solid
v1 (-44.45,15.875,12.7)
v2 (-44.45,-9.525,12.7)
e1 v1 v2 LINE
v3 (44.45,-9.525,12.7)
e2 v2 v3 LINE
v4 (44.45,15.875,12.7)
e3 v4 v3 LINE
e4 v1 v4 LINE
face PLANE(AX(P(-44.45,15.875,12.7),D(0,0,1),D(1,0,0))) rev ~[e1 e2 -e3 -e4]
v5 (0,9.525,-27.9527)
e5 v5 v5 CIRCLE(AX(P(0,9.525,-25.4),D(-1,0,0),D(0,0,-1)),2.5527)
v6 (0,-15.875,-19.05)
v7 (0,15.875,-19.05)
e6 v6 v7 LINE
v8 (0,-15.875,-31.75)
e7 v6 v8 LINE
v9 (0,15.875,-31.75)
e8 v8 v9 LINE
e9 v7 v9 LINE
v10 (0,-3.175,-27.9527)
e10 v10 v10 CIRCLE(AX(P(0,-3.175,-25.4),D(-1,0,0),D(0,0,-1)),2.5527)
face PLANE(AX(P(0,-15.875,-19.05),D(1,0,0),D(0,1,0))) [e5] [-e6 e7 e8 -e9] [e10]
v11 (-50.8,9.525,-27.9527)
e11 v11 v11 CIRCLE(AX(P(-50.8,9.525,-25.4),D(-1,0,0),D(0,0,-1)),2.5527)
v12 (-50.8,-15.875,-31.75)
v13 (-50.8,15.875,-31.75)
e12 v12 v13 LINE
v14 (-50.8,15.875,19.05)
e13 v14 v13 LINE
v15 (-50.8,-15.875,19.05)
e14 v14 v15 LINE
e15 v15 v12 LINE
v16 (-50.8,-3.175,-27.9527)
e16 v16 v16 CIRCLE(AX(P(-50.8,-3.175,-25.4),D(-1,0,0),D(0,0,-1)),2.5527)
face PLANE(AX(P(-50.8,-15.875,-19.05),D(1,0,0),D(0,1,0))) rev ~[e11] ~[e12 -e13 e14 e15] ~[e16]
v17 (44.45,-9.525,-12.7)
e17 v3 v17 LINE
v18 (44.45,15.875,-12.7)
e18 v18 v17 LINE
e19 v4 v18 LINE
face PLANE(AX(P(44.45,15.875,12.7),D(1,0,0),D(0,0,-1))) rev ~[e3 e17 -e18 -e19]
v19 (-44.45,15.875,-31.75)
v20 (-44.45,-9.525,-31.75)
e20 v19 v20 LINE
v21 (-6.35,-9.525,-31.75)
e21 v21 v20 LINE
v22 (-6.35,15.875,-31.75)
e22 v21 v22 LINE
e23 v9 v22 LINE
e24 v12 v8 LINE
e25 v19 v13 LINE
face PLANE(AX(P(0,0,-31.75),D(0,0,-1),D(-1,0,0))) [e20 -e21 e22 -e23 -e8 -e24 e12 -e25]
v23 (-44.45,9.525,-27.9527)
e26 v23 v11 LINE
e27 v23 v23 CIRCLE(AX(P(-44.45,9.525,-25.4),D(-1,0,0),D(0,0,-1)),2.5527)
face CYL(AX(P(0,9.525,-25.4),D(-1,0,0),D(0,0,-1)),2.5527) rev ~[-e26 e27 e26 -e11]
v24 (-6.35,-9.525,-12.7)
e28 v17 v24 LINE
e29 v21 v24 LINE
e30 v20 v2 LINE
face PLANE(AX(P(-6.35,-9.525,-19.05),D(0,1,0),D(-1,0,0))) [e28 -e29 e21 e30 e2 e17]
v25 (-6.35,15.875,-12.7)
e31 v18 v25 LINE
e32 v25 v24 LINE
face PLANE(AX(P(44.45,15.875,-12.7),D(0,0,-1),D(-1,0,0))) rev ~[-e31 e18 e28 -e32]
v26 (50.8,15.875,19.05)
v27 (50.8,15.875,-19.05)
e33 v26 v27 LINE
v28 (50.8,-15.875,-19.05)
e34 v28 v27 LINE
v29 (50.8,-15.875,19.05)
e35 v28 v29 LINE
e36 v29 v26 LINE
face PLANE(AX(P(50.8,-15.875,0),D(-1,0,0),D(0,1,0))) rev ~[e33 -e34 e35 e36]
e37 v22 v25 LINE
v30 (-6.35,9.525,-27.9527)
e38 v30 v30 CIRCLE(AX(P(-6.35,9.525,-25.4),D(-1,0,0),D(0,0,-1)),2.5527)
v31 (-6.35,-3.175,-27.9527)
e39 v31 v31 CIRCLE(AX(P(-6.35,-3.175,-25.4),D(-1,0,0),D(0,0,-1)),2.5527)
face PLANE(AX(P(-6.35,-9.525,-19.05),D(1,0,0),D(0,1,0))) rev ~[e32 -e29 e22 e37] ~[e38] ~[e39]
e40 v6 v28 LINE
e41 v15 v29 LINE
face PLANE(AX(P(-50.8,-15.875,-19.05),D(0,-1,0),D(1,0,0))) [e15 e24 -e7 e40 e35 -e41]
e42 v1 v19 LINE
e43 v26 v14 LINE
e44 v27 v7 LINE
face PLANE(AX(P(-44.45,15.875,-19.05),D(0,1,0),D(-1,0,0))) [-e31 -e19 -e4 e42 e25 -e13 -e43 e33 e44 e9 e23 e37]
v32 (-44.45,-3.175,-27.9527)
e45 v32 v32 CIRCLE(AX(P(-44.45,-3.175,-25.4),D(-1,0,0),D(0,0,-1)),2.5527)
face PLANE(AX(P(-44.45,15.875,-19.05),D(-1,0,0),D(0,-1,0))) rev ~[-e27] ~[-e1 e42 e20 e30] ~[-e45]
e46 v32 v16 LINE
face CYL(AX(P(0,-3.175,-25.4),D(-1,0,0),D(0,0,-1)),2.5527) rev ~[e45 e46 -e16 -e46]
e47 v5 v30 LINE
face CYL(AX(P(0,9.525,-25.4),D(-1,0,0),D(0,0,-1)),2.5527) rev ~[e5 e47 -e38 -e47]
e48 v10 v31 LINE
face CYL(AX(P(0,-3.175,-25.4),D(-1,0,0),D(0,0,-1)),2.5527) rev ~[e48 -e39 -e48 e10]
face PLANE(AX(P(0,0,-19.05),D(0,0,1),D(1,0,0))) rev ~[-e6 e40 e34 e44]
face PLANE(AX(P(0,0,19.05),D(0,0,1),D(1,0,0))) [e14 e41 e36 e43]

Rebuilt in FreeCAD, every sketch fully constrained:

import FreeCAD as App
import Part
import Sketcher
Q = App.Units.Quantity


def add_polygon(sketch, points):
    """Adds a closed chain of lines whose ends are joined by coincident constraints."""
    first, n = sketch.GeometryCount, len(points)
    for a, b in zip(points, points[1:] + points[:1]):
        sketch.addGeometry(Part.LineSegment(App.Vector(*a, 0), App.Vector(*b, 0)), False)
    for i in range(n):
        sketch.addConstraint(Sketcher.Constraint("Coincident", first + i, 2, first + (i + 1) % n, 1))

doc = App.newDocument("Part")
params = doc.addObject("Spreadsheet::Sheet", "Params")
for row, (alias, value) in enumerate([
    ("sketch1_width", "4 in"),
    ("sketch1_height", "1.25 in"),
    ("pad1_length", "1.5 in"),
    ("sketch2_height", "1 in"),
    ("sketch2_width", "3.5 in"),
    ("pocket1_length", "1 in"),
    ("sketch3_height", "1 in"),
    ("sketch3_width", "1.5 in"),
    ("sketch4_width", "2 in"),
    ("sketch4_height", "1 in"),
    ("sketch4_width2", "1.5 in"),
    ("sketch4_height2", "1.25 in"),
    ("pad2_length", "0.5 in"),
    ("sketch5_diameter", "0.201 in"),
    ("hole_diameter", "0.201 in"),
], start=1):
    params.set(f"A{row}", alias)
    params.set(f"B{row}", "=" + value)
    params.setAlias(f"B{row}", alias)

body = doc.addObject("PartDesign::Body", "Body")

sketch1 = body.newObject("Sketcher::SketchObject", "Sketch")
sketch1.AttachmentSupport = (doc.getObject("XY_Plane"), [""])
sketch1.MapMode = "FlatFace"
add_polygon(sketch1, [(-51, 16), (-51, -16), (51, -16), (51, 16)])
sketch1.addConstraint(Sketcher.Constraint("Vertical", 0))
sketch1.addConstraint(Sketcher.Constraint("Horizontal", 1))
sketch1.addConstraint(Sketcher.Constraint("Vertical", 2))
sketch1.addConstraint(Sketcher.Constraint("Horizontal", 3))
sketch1.addConstraint(Sketcher.Constraint("Symmetric", 0, 2, 2, 2, -1, 1))
sketch1.addConstraint(Sketcher.Constraint("DistanceX", 1, 1, 1, 2, Q("4 in")))
sketch1.addConstraint(Sketcher.Constraint("DistanceY", 0, 2, 0, 1, Q("1.25 in")))
sketch1.setExpression("Constraints[9]", "Params.sketch1_width")
sketch1.setExpression("Constraints[10]", "Params.sketch1_height")
pad1 = body.newObject("PartDesign::Pad", "Pad")
pad1.Profile = sketch1
pad1.setExpression("Length", "Params.pad1_length")
pad1.Midplane = True

sketch2 = body.newObject("Sketcher::SketchObject", "Sketch001")
sketch2.AttachmentSupport = (doc.getObject("XZ_Plane"), [""])
sketch2.MapMode = "FlatFace"
sketch2.AttachmentOffset = App.Placement(App.Vector(0, 0, -0.625 * 25.4), App.Rotation())
add_polygon(sketch2, [(-44, 13), (44, 13), (44, -13), (-44, -13)])
sketch2.addConstraint(Sketcher.Constraint("Horizontal", 0))
sketch2.addConstraint(Sketcher.Constraint("Vertical", 1))
sketch2.addConstraint(Sketcher.Constraint("Horizontal", 2))
sketch2.addConstraint(Sketcher.Constraint("Vertical", 3))
sketch2.addConstraint(Sketcher.Constraint("Symmetric", 0, 2, 2, 2, -1, 1))
sketch2.addConstraint(Sketcher.Constraint("DistanceY", 1, 2, 1, 1, Q("1 in")))
sketch2.addConstraint(Sketcher.Constraint("DistanceX", 0, 1, 0, 2, Q("3.5 in")))
sketch2.setExpression("Constraints[9]", "Params.sketch2_height")
sketch2.setExpression("Constraints[10]", "Params.sketch2_width")
pocket1 = body.newObject("PartDesign::Pocket", "Pocket")
pocket1.Profile = sketch2
pocket1.setExpression("Length", "Params.pocket1_length")
pocket1.Reversed = True

sketch3 = body.newObject("Sketcher::SketchObject", "Sketch002")
sketch3.AttachmentSupport = (doc.getObject("XY_Plane"), [""])
sketch3.MapMode = "FlatFace"
sketch3.AttachmentOffset = App.Placement(App.Vector(0, 0, -0.5 * 25.4), App.Rotation())
add_polygon(sketch3, [(-6, -10), (-6, 16), (-44, 16), (-44, -10)])
sketch3.addConstraint(Sketcher.Constraint("Vertical", 0))
sketch3.addConstraint(Sketcher.Constraint("Horizontal", 1))
sketch3.addConstraint(Sketcher.Constraint("Vertical", 2))
sketch3.addConstraint(Sketcher.Constraint("Horizontal", 3))
sketch3.addConstraint(Sketcher.Constraint("DistanceY", 0, 1, 0, 2, Q("1 in")))
sketch3.addConstraint(Sketcher.Constraint("DistanceX", 1, 2, 1, 1, Q("1.5 in")))
sketch3.addConstraint(Sketcher.Constraint("DistanceX", 0, 2, -1, 1, Q("0.25 in")))
sketch3.addConstraint(Sketcher.Constraint("DistanceY", -1, 1, 0, 2, Q("0.625 in")))
sketch3.setExpression("Constraints[8]", "Params.sketch3_height")
sketch3.setExpression("Constraints[9]", "Params.sketch3_width")
pocket2 = body.newObject("PartDesign::Pocket", "Pocket001")
pocket2.Profile = sketch3
pocket2.Type = "ThroughAll"

sketch4 = body.newObject("Sketcher::SketchObject", "Sketch003")
sketch4.AttachmentSupport = (doc.getObject("XY_Plane"), [""])
sketch4.MapMode = "FlatFace"
sketch4.AttachmentOffset = App.Placement(App.Vector(0, 0, -0.75 * 25.4), App.Rotation())
add_polygon(sketch4, [(0, -16), (-51, -16), (-51, 16), (-44, 16), (-44, -10), (-6, -10), (-6, 16), (0, 16)])
sketch4.addConstraint(Sketcher.Constraint("Horizontal", 0))
sketch4.addConstraint(Sketcher.Constraint("Vertical", 1))
sketch4.addConstraint(Sketcher.Constraint("Horizontal", 2))
sketch4.addConstraint(Sketcher.Constraint("Vertical", 3))
sketch4.addConstraint(Sketcher.Constraint("Horizontal", 4))
sketch4.addConstraint(Sketcher.Constraint("Vertical", 5))
sketch4.addConstraint(Sketcher.Constraint("Horizontal", 6))
sketch4.addConstraint(Sketcher.Constraint("Vertical", 7))
sketch4.addConstraint(Sketcher.Constraint("Symmetric", 6, 2, 7, 2, -1, 1))
sketch4.addConstraint(Sketcher.Constraint("Horizontal", 2, 2, 5, 2))
sketch4.addConstraint(Sketcher.Constraint("Equal", 2, 6))
sketch4.addConstraint(Sketcher.Constraint("DistanceX", 0, 2, 0, 1, Q("2 in")))
sketch4.addConstraint(Sketcher.Constraint("DistanceY", 3, 2, 3, 1, Q("1 in")))
sketch4.addConstraint(Sketcher.Constraint("DistanceX", 4, 1, 4, 2, Q("1.5 in")))
sketch4.addConstraint(Sketcher.Constraint("DistanceY", 1, 1, 1, 2, Q("1.25 in")))
sketch4.setExpression("Constraints[19]", "Params.sketch4_width")
sketch4.setExpression("Constraints[20]", "Params.sketch4_height")
sketch4.setExpression("Constraints[21]", "Params.sketch4_width2")
sketch4.setExpression("Constraints[22]", "Params.sketch4_height2")
pad2 = body.newObject("PartDesign::Pad", "Pad001")
pad2.Profile = sketch4
pad2.setExpression("Length", "Params.pad2_length")
pad2.Reversed = True

sketch5 = body.newObject("Sketcher::SketchObject", "Sketch004")
sketch5.AttachmentSupport = (doc.getObject("YZ_Plane"), [""])
sketch5.MapMode = "FlatFace"
sketch5.addGeometry(Part.Circle(App.Vector(9.5, -25.4, 0), App.Vector(0, 0, 1), 2.6), False)
sketch5.addGeometry(Part.Circle(App.Vector(-3.2, -25.4, 0), App.Vector(0, 0, 1), 2.6), False)
sketch5.addConstraint(Sketcher.Constraint("Equal", 0, 1))
sketch5.addConstraint(Sketcher.Constraint("Horizontal", 0, 3, 1, 3))
sketch5.addConstraint(Sketcher.Constraint("Diameter", 0, Q("0.201 in")))
sketch5.addConstraint(Sketcher.Constraint("DistanceY", 0, 3, -1, 1, Q("1 in")))
sketch5.addConstraint(Sketcher.Constraint("DistanceX", 1, 3, 0, 3, Q("0.5 in")))
sketch5.addConstraint(Sketcher.Constraint("DistanceX", -1, 1, 0, 3, Q("0.375 in")))
sketch5.setExpression("Constraints[2]", "Params.sketch5_diameter")
doc.recompute()
hole = body.newObject("PartDesign::Hole", "Hole")
hole.Profile = sketch5
hole.ThreadType = "None"
hole.setExpression("Diameter", "Params.hole_diameter")
hole.DepthType = "ThroughAll"

doc.recompute()
